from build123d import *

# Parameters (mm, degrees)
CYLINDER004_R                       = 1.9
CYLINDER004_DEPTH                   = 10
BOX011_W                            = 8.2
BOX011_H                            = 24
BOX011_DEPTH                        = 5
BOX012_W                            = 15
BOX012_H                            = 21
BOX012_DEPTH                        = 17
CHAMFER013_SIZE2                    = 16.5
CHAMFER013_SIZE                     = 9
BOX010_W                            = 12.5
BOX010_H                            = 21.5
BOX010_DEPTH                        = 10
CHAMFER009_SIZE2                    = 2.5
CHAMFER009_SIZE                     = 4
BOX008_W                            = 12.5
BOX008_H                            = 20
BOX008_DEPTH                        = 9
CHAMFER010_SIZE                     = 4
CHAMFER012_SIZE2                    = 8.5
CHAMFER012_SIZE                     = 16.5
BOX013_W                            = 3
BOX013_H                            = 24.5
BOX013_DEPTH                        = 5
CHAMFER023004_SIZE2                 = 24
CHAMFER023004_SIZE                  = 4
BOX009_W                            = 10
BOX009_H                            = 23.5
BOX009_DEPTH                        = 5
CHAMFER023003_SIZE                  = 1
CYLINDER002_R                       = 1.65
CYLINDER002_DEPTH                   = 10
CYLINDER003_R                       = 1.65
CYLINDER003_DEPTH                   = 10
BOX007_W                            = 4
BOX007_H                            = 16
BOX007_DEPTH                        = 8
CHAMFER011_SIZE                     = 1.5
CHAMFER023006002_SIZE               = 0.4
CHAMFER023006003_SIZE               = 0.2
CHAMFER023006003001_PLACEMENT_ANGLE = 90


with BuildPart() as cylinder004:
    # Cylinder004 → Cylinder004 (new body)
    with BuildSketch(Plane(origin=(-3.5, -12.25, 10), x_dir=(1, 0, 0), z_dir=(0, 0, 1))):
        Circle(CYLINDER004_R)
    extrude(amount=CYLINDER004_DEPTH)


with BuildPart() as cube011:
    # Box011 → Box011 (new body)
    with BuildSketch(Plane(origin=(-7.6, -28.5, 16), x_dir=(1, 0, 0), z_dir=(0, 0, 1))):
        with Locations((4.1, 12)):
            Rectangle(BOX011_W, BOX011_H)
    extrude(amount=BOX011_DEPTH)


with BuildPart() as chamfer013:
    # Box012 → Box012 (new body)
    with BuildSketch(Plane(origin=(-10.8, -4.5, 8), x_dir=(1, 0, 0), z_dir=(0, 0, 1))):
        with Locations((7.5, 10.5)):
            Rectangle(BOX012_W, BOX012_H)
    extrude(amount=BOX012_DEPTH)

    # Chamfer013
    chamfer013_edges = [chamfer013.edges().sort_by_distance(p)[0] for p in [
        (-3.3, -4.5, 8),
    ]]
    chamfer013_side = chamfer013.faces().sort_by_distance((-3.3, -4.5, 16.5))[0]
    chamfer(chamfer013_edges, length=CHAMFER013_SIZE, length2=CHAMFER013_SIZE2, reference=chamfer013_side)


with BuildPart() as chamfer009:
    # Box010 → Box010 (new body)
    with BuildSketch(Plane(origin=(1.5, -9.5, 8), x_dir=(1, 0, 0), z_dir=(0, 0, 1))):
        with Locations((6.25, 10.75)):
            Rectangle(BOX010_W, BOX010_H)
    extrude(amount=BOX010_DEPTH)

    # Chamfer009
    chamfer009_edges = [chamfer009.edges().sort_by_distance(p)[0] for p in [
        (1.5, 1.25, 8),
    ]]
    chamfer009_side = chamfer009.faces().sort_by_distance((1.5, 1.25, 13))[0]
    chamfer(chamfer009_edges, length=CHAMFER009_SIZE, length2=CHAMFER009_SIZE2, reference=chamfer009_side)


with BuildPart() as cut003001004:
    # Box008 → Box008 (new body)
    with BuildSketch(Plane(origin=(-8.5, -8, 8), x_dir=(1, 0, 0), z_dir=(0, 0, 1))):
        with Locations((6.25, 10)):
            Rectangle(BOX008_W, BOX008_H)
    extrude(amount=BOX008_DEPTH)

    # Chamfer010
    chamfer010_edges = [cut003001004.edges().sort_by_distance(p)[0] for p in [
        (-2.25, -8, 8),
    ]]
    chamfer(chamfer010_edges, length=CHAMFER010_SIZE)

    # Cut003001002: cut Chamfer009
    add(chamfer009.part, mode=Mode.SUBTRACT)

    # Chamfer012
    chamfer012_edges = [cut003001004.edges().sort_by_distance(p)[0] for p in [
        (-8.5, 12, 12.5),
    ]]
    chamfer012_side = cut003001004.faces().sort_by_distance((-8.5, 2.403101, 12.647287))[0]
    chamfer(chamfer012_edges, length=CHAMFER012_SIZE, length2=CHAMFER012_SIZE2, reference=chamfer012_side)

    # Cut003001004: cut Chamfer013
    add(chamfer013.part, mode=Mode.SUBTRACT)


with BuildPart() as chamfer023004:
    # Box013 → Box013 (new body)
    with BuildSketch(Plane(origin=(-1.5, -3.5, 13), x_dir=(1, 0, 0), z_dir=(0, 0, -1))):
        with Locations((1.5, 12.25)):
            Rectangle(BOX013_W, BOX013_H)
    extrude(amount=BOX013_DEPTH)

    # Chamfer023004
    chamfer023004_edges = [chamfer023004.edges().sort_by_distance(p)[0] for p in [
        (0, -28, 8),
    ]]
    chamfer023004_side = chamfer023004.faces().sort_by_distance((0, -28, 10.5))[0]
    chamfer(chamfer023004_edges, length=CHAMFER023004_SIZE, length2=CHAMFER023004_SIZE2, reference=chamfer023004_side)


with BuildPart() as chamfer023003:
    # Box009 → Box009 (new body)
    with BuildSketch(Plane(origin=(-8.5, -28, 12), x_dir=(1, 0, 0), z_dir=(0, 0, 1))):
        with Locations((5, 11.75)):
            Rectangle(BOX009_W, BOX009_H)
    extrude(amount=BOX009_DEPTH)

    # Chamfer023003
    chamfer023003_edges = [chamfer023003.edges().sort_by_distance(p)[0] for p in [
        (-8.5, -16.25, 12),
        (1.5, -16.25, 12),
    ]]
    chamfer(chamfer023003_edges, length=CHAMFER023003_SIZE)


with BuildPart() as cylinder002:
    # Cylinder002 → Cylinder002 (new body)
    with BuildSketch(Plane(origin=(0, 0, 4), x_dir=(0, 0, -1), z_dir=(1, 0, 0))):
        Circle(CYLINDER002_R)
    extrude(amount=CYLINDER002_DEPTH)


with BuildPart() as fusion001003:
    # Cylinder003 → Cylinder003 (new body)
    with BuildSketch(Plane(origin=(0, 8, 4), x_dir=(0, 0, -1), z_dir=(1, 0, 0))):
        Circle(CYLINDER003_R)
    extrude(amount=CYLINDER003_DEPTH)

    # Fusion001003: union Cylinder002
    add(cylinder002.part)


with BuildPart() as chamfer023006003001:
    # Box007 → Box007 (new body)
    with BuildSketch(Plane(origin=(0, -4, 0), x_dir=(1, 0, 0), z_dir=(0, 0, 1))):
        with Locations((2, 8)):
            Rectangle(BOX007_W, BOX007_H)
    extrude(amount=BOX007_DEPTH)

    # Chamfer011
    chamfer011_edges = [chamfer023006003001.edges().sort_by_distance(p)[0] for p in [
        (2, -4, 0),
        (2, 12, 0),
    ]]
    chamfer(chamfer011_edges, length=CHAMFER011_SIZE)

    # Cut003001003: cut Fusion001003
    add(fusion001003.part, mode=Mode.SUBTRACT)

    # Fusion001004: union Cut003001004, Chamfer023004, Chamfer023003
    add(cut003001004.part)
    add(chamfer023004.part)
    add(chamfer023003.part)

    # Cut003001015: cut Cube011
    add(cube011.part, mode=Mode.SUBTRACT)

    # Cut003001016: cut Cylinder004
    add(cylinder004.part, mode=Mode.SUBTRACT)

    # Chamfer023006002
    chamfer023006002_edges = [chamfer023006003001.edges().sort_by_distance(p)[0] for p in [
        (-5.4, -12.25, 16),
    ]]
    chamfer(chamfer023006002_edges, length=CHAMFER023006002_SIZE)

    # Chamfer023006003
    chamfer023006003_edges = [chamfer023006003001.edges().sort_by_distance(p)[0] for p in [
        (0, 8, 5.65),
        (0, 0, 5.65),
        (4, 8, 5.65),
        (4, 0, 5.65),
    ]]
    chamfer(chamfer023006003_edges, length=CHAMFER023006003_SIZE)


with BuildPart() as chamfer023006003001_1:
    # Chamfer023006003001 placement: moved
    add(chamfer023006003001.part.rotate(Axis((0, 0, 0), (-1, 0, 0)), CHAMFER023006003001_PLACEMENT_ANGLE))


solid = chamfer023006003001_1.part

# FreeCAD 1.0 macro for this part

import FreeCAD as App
import Part
import Sketcher

V = App.Vector
Q = App.Units.Quantity


def edges_at(feature, points):
    """Names of the edges that pass closest to the given points."""
    edges = feature.Shape.Edges
    near = lambda p: min(range(len(edges)), key=lambda i: edges[i].distToShape(Part.Vertex(*p))[0])
    return sorted({f"Edge{near(p) + 1}" for p in points})


def add_polygon(sketch, points):
    """Adds a closed chain of lines whose ends are joined by coincident constraints."""
    first, n = sketch.GeometryCount, len(points)
    for a, b in zip(points, points[1:] + points[:1]):
        sketch.addGeometry(Part.LineSegment(App.Vector(*a, 0), App.Vector(*b, 0)), False)
    for i in range(n):
        sketch.addConstraint(Sketcher.Constraint("Coincident", first + i, 2, first + (i + 1) % n, 1))

doc = App.newDocument("Part")
body = doc.addObject("PartDesign::Body", "Body")

# Sketch on XY plane
sketch1 = doc.addObject("Sketcher::SketchObject", "Sketch")
body.addObject(sketch1)
sketch1.AttachmentSupport = (doc.XY_Plane, [""])
sketch1.MapMode = "FlatFace"
sketch1.AttachmentOffset = App.Placement(V(0, 0, 10), App.Rotation())
sketch1.addGeometry(Part.Circle(V(-3.5, -12.2, 0), V(0, 0, 1), 1.9), False)
sketch1.addConstraint([
    Sketcher.Constraint("Diameter", 0, Q("3.8 mm")),
    Sketcher.Constraint("DistanceX", 0, 3, -1, 1, Q("3.5 mm")),
    Sketcher.Constraint("DistanceY", 0, 3, -1, 1, Q("12.25 mm")),
])
pad1 = doc.addObject("PartDesign::Pad", "Pad")
body.addObject(pad1)
pad1.Profile = sketch1
pad1.Length = 10
body2 = doc.addObject("PartDesign::Body", "Body001")

# Sketch on XY plane
sketch2 = doc.addObject("Sketcher::SketchObject", "Sketch001")
body2.addObject(sketch2)
sketch2.AttachmentSupport = (doc.getObject("XY_Plane001"), [""])
sketch2.MapMode = "FlatFace"
sketch2.AttachmentOffset = App.Placement(V(0, 0, 16), App.Rotation())
add_polygon(sketch2, [(-8, -4), (-8, -28), (1, -28), (1, -4)])  # lines 0-3
sketch2.addConstraint([
    Sketcher.Constraint("Vertical", 0),
    Sketcher.Constraint("Horizontal", 1),
    Sketcher.Constraint("Vertical", 2),
    Sketcher.Constraint("Horizontal", 3),
    Sketcher.Constraint("DistanceY", 0, 2, 0, 1, Q("24 mm")),
    Sketcher.Constraint("DistanceX", 1, 1, 1, 2, Q("8.2 mm")),
    Sketcher.Constraint("DistanceX", 0, 2, -1, 1, Q("7.6 mm")),
    Sketcher.Constraint("DistanceY", 0, 2, -1, 1, Q("28.5 mm")),
])
pad2 = doc.addObject("PartDesign::Pad", "Pad001")
body2.addObject(pad2)
pad2.Profile = sketch2
pad2.Length = 5
body3 = doc.addObject("PartDesign::Body", "Body002")

# Sketch on XY plane
sketch3 = doc.addObject("Sketcher::SketchObject", "Sketch002")
body3.addObject(sketch3)
sketch3.AttachmentSupport = (doc.getObject("XY_Plane002"), [""])
sketch3.MapMode = "FlatFace"
sketch3.AttachmentOffset = App.Placement(V(0, 0, 8), App.Rotation())
add_polygon(sketch3, [(-11, 16), (-11, -4), (4, -4), (4, 16)])  # lines 0-3
sketch3.addConstraint([
    Sketcher.Constraint("Vertical", 0),
    Sketcher.Constraint("Horizontal", 1),
    Sketcher.Constraint("Vertical", 2),
    Sketcher.Constraint("Horizontal", 3),
    Sketcher.Constraint("DistanceX", 1, 1, 1, 2, Q("15 mm")),
    Sketcher.Constraint("DistanceY", 0, 2, 0, 1, Q("21 mm")),
    Sketcher.Constraint("DistanceX", 0, 2, -1, 1, Q("10.8 mm")),
    Sketcher.Constraint("DistanceY", 0, 2, -1, 1, Q("4.5 mm")),
])
pad3 = doc.addObject("PartDesign::Pad", "Pad002")
body3.addObject(pad3)
pad3.Profile = sketch3
pad3.Length = 17
doc.recompute()

chamfer = doc.addObject("PartDesign::Chamfer", "Chamfer")
body3.addObject(chamfer)
chamfer.Base = (pad3, edges_at(pad3, [(-3.3, -4.5, 8)]))
chamfer.ChamferType = "Two distances"
chamfer.Size = 9
chamfer.Size2 = 16.5
body4 = doc.addObject("PartDesign::Body", "Body003")

# Sketch on XY plane
sketch4 = doc.addObject("Sketcher::SketchObject", "Sketch003")
body4.addObject(sketch4)
sketch4.AttachmentSupport = (doc.getObject("XY_Plane003"), [""])
sketch4.MapMode = "FlatFace"
sketch4.AttachmentOffset = App.Placement(V(0, 0, 8), App.Rotation())
add_polygon(sketch4, [(2, 12), (2, -10), (14, -10), (14, 12)])  # lines 0-3
sketch4.addConstraint([
    Sketcher.Constraint("Vertical", 0),
    Sketcher.Constraint("Horizontal", 1),
    Sketcher.Constraint("Vertical", 2),
    Sketcher.Constraint("Horizontal", 3),
    Sketcher.Constraint("DistanceX", 1, 1, 1, 2, Q("12.5 mm")),
    Sketcher.Constraint("DistanceY", 0, 2, 0, 1, Q("21.5 mm")),
    Sketcher.Constraint("DistanceX", -1, 1, 1, 2, Q("14 mm")),
    Sketcher.Constraint("DistanceY", -1, 1, 2, 2, Q("12 mm")),
])
pad4 = doc.addObject("PartDesign::Pad", "Pad003")
body4.addObject(pad4)
pad4.Profile = sketch4
pad4.Length = 10
doc.recompute()

chamfer2 = doc.addObject("PartDesign::Chamfer", "Chamfer001")
body4.addObject(chamfer2)
chamfer2.Base = (pad4, edges_at(pad4, [(1.5, 1.25, 8)]))
chamfer2.ChamferType = "Two distances"
chamfer2.Size = 4
chamfer2.Size2 = 2.5
body5 = doc.addObject("PartDesign::Body", "Body004")

# Sketch on XY plane
sketch5 = doc.addObject("Sketcher::SketchObject", "Sketch004")
body5.addObject(sketch5)
sketch5.AttachmentSupport = (doc.getObject("XY_Plane004"), [""])
sketch5.MapMode = "FlatFace"
sketch5.AttachmentOffset = App.Placement(V(0, 0, 8), App.Rotation())
add_polygon(sketch5, [(-8, 12), (-8, -8), (4, -8), (4, 12)])  # lines 0-3
sketch5.addConstraint([
    Sketcher.Constraint("Vertical", 0),
    Sketcher.Constraint("Horizontal", 1),
    Sketcher.Constraint("Vertical", 2),
    Sketcher.Constraint("Horizontal", 3),
    Sketcher.Constraint("DistanceY", 0, 2, 0, 1, Q("20 mm")),
    Sketcher.Constraint("DistanceX", 1, 1, 1, 2, Q("12.5 mm")),
    Sketcher.Constraint("DistanceY", 0, 2, -1, 1, Q("8 mm")),
    Sketcher.Constraint("DistanceX", -1, 1, 1, 2, Q("4 mm")),
])
pad5 = doc.addObject("PartDesign::Pad", "Pad004")
body5.addObject(pad5)
pad5.Profile = sketch5
pad5.Length = 9
doc.recompute()

chamfer3 = doc.addObject("PartDesign::Chamfer", "Chamfer002")
body5.addObject(chamfer3)
chamfer3.Base = (pad5, edges_at(pad5, [(-2.25, -8, 8)]))
chamfer3.Size = 4
doc.recompute()

boolean = doc.addObject("PartDesign::Boolean", "Boolean")
body5.addObject(boolean)
boolean.Type = "Cut"
boolean.addObjects([body4])
doc.recompute()

chamfer4 = doc.addObject("PartDesign::Chamfer", "Chamfer003")
body5.addObject(chamfer4)
chamfer4.Base = (boolean, edges_at(boolean, [(-8.5, 12, 12.5)]))
chamfer4.ChamferType = "Two distances"
chamfer4.Size = 16.5
chamfer4.Size2 = 8.5
doc.recompute()

boolean2 = doc.addObject("PartDesign::Boolean", "Boolean001")
body5.addObject(boolean2)
boolean2.Type = "Cut"
boolean2.addObjects([body3])
body6 = doc.addObject("PartDesign::Body", "Body005")

# Sketch on XY plane
sketch6 = doc.addObject("Sketcher::SketchObject", "Sketch005")
body6.addObject(sketch6)
sketch6.AttachmentSupport = (doc.getObject("XY_Plane005"), [""])
sketch6.MapMode = "FlatFace"
sketch6.AttachmentOffset = App.Placement(V(0, 0, 13), App.Rotation())
add_polygon(sketch6, [(-1.5, -28), (-1.5, -3.5), (1.5, -3.5), (1.5, -28)])  # lines 0-3
sketch6.addConstraint([
    Sketcher.Constraint("Vertical", 0),
    Sketcher.Constraint("Horizontal", 1),
    Sketcher.Constraint("Vertical", 2),
    Sketcher.Constraint("Horizontal", 3),
    Sketcher.Constraint("DistanceX", 1, 1, 1, 2, Q("3 mm")),
    Sketcher.Constraint("DistanceY", 0, 1, 0, 2, Q("24.5 mm")),
    Sketcher.Constraint("DistanceY", 2, 2, -1, 1, Q("28 mm")),
    Sketcher.Constraint("DistanceX", 0, 2, -1, 1, Q("1.5 mm")),
])
pad6 = doc.addObject("PartDesign::Pad", "Pad005")
body6.addObject(pad6)
pad6.Profile = sketch6
pad6.Length = 5
pad6.Reversed = True
doc.recompute()

chamfer5 = doc.addObject("PartDesign::Chamfer", "Chamfer004")
body6.addObject(chamfer5)
chamfer5.Base = (pad6, edges_at(pad6, [(0, -28, 8)]))
chamfer5.ChamferType = "Two distances"
chamfer5.Size = 4
chamfer5.Size2 = 24
body7 = doc.addObject("PartDesign::Body", "Body006")

# Sketch on XY plane
sketch7 = doc.addObject("Sketcher::SketchObject", "Sketch006")
body7.addObject(sketch7)
sketch7.AttachmentSupport = (doc.getObject("XY_Plane006"), [""])
sketch7.MapMode = "FlatFace"
sketch7.AttachmentOffset = App.Placement(V(0, 0, 12), App.Rotation())
add_polygon(sketch7, [(-8, -4), (-8, -28), (2, -28), (2, -4)])  # lines 0-3
sketch7.addConstraint([
    Sketcher.Constraint("Vertical", 0),
    Sketcher.Constraint("Horizontal", 1),
    Sketcher.Constraint("Vertical", 2),
    Sketcher.Constraint("Horizontal", 3),
    Sketcher.Constraint("DistanceX", 1, 1, 1, 2, Q("10 mm")),
    Sketcher.Constraint("DistanceY", 0, 2, 0, 1, Q("23.5 mm")),
    Sketcher.Constraint("DistanceY", 0, 2, -1, 1, Q("28 mm")),
    Sketcher.Constraint("DistanceX", 0, 2, -1, 1, Q("8.5 mm")),
])
pad7 = doc.addObject("PartDesign::Pad", "Pad006")
body7.addObject(pad7)
pad7.Profile = sketch7
pad7.Length = 5
doc.recompute()

chamfer6 = doc.addObject("PartDesign::Chamfer", "Chamfer005")
body7.addObject(chamfer6)
chamfer6.Base = (pad7, edges_at(pad7, [(-8.5, -16.25, 12), (1.5, -16.25, 12)]))
chamfer6.Size = 1
body8 = doc.addObject("PartDesign::Body", "Body007")

# Sketch on YZ plane
sketch8 = doc.addObject("Sketcher::SketchObject", "Sketch007")
body8.addObject(sketch8)
sketch8.AttachmentSupport = (doc.getObject("YZ_Plane007"), [""])
sketch8.MapMode = "FlatFace"
sketch8.addGeometry(Part.Circle(V(0, 4, 0), V(0, 0, 1), 1.6), False)
sketch8.addConstraint([
    Sketcher.Constraint("PointOnObject", 0, 3, -2),
    Sketcher.Constraint("Diameter", 0, Q("3.3 mm")),
    Sketcher.Constraint("DistanceY", -1, 1, 0, 3, Q("4 mm")),
])
pad8 = doc.addObject("PartDesign::Pad", "Pad007")
body8.addObject(pad8)
pad8.Profile = sketch8
pad8.Length = 10
body9 = doc.addObject("PartDesign::Body", "Body008")
body9.AllowCompound = True

# Sketch on YZ plane
sketch9 = doc.addObject("Sketcher::SketchObject", "Sketch008")
body9.addObject(sketch9)
sketch9.AttachmentSupport = (doc.getObject("YZ_Plane008"), [""])
sketch9.MapMode = "FlatFace"
sketch9.addGeometry(Part.Circle(V(8, 4, 0), V(0, 0, 1), 1.6), False)
sketch9.addConstraint([
    Sketcher.Constraint("Diameter", 0, Q("3.3 mm")),
    Sketcher.Constraint("DistanceX", -1, 1, 0, 3, Q("8 mm")),
    Sketcher.Constraint("DistanceY", -1, 1, 0, 3, Q("4 mm")),
])
pad9 = doc.addObject("PartDesign::Pad", "Pad008")
body9.addObject(pad9)
pad9.Profile = sketch9
pad9.Length = 10
doc.recompute()

boolean3 = doc.addObject("PartDesign::Boolean", "Boolean002")
body9.addObject(boolean3)
boolean3.Type = "Fuse"
boolean3.addObjects([body8])
body10 = doc.addObject("PartDesign::Body", "Body009")

# Sketch on XY plane
sketch10 = doc.addObject("Sketcher::SketchObject", "Sketch009")
body10.addObject(sketch10)
sketch10.AttachmentSupport = (doc.getObject("XY_Plane009"), [""])
sketch10.MapMode = "FlatFace"
add_polygon(sketch10, [(0, 12), (0, -4), (4, -4), (4, 12)])  # lines 0-3
sketch10.addConstraint([
    Sketcher.Constraint("Vertical", 0),
    Sketcher.Constraint("Horizontal", 1),
    Sketcher.Constraint("Vertical", 2),
    Sketcher.Constraint("Horizontal", 3),
    Sketcher.Constraint("PointOnObject", 0, 2, -2),
    Sketcher.Constraint("DistanceX", 1, 1, 1, 2, Q("4 mm")),
    Sketcher.Constraint("DistanceY", 0, 2, 0, 1, Q("16 mm")),
    Sketcher.Constraint("DistanceY", 0, 2, -1, 1, Q("4 mm")),
])
pad10 = doc.addObject("PartDesign::Pad", "Pad009")
body10.addObject(pad10)
pad10.Profile = sketch10
pad10.Length = 8
doc.recompute()

chamfer7 = doc.addObject("PartDesign::Chamfer", "Chamfer006")
body10.addObject(chamfer7)
chamfer7.Base = (pad10, edges_at(pad10, [(2, -4, 0), (2, 12, 0)]))
chamfer7.Size = 1.5
doc.recompute()

boolean4 = doc.addObject("PartDesign::Boolean", "Boolean003")
body10.addObject(boolean4)
boolean4.Type = "Cut"
boolean4.addObjects([body9])
doc.recompute()

boolean5 = doc.addObject("PartDesign::Boolean", "Boolean004")
body10.addObject(boolean5)
boolean5.Type = "Fuse"
boolean5.addObjects([body5])
doc.recompute()

boolean6 = doc.addObject("PartDesign::Boolean", "Boolean005")
body10.addObject(boolean6)
boolean6.Type = "Fuse"
boolean6.addObjects([body6])
doc.recompute()

boolean7 = doc.addObject("PartDesign::Boolean", "Boolean006")
body10.addObject(boolean7)
boolean7.Type = "Fuse"
boolean7.addObjects([body7])
doc.recompute()

boolean8 = doc.addObject("PartDesign::Boolean", "Boolean007")
body10.addObject(boolean8)
boolean8.Type = "Cut"
boolean8.addObjects([body2])
doc.recompute()

boolean9 = doc.addObject("PartDesign::Boolean", "Boolean008")
body10.addObject(boolean9)
boolean9.Type = "Cut"
boolean9.addObjects([body])
doc.recompute()

chamfer8 = doc.addObject("PartDesign::Chamfer", "Chamfer007")
body10.addObject(chamfer8)
chamfer8.Base = (boolean9, edges_at(boolean9, [(-5.4, -12.25, 16)]))
chamfer8.Size = 0.4
doc.recompute()

chamfer9 = doc.addObject("PartDesign::Chamfer", "Chamfer008")
body10.addObject(chamfer9)
chamfer9.Base = (chamfer8, edges_at(chamfer8, [
    (0, 8, 5.65),
    (0, 0, 5.65),
    (4, 8, 5.65),
    (4, 0, 5.65),
]))
chamfer9.Size = 0.2
body11 = doc.addObject("PartDesign::Body", "Body010")
doc.recompute()

body10.Placement = App.Placement(V(0, 0, 0), App.Rotation(V(-1, 0, 0), 90))
boolean10 = doc.addObject("PartDesign::Boolean", "Boolean009")
body11.addObject(boolean10)
boolean10.Type = "Fuse"
boolean10.addObjects([body10])

doc.recompute()
